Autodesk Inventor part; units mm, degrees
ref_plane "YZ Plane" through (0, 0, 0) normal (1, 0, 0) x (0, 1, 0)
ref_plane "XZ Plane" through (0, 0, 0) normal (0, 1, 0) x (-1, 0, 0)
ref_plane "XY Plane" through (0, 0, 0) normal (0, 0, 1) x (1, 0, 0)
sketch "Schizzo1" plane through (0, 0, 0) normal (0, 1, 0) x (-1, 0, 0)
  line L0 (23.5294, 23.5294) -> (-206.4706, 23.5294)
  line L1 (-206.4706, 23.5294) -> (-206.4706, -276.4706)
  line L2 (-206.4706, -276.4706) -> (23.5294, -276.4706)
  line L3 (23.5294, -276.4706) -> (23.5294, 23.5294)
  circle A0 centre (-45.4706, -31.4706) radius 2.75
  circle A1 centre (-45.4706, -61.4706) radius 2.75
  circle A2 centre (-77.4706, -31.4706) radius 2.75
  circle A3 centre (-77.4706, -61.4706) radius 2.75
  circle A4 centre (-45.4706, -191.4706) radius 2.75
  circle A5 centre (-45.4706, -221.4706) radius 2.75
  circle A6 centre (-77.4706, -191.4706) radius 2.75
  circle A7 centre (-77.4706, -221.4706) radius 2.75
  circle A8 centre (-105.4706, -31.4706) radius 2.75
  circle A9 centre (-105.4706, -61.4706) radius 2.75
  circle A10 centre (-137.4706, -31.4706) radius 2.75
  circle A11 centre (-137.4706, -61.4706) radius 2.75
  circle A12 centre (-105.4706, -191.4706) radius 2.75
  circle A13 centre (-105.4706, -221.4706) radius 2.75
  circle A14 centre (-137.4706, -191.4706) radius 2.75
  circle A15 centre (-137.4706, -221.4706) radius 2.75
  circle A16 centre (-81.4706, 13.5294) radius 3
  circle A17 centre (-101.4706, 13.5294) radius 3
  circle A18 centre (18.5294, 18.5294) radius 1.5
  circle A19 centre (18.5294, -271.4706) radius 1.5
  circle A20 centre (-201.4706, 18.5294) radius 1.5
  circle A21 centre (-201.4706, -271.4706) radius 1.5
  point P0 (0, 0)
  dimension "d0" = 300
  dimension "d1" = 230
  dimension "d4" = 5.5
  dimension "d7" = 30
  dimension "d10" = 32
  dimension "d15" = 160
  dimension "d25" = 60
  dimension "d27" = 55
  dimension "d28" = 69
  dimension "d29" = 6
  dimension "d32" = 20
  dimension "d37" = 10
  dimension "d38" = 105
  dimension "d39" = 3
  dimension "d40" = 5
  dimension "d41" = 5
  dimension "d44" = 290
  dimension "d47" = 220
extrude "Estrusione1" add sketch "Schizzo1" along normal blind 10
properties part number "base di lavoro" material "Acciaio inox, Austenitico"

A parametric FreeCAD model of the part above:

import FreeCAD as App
import Part
import Sketcher
from FreeCAD import Vector
Q = App.Units.Quantity


def add_polygon(sketch, points):
    """Adds a closed chain of lines whose ends are joined by coincident constraints."""
    first, n = sketch.GeometryCount, len(points)
    for a, b in zip(points, points[1:] + points[:1]):
        sketch.addGeometry(Part.LineSegment(App.Vector(*a, 0), App.Vector(*b, 0)), False)
    for i in range(n):
        sketch.addConstraint(Sketcher.Constraint("Coincident", first + i, 2, first + (i + 1) % n, 1))

doc = App.newDocument("Part")
body = doc.addObject("PartDesign::Body", "Body")

sketch1 = doc.addObject("Sketcher::SketchObject", "Sketch")
body.addObject(sketch1)
sketch1.AttachmentSupport = (doc.XZ_Plane, [""])
sketch1.MapMode = "FlatFace"
add_polygon(sketch1, [(-23.5, -276.5), (-23.5, 23.5), (206.5, 23.5), (206.5, -276.5)])
sketch1.addGeometry(Part.Circle(Vector(201.5, -271.5, 0), Vector(0, 0, 1), 1.5), False)
sketch1.addGeometry(Part.Circle(Vector(137.5, -221.5, 0), Vector(0, 0, 1), 2.8), False)
sketch1.addGeometry(Part.Circle(Vector(105.5, -221.5, 0), Vector(0, 0, 1), 2.8), False)
sketch1.addGeometry(Part.Circle(Vector(137.5, -191.5, 0), Vector(0, 0, 1), 2.8), False)
sketch1.addGeometry(Part.Circle(Vector(105.5, -191.5, 0), Vector(0, 0, 1), 2.8), False)
sketch1.addGeometry(Part.Circle(Vector(77.5, -221.5, 0), Vector(0, 0, 1), 2.8), False)
sketch1.addGeometry(Part.Circle(Vector(45.5, -221.5, 0), Vector(0, 0, 1), 2.8), False)
sketch1.addGeometry(Part.Circle(Vector(-18.5, -271.5, 0), Vector(0, 0, 1), 1.5), False)
sketch1.addGeometry(Part.Circle(Vector(77.5, -191.5, 0), Vector(0, 0, 1), 2.8), False)
sketch1.addGeometry(Part.Circle(Vector(45.5, -191.5, 0), Vector(0, 0, 1), 2.8), False)
sketch1.addGeometry(Part.Circle(Vector(137.5, -61.5, 0), Vector(0, 0, 1), 2.8), False)
sketch1.addGeometry(Part.Circle(Vector(105.5, -61.5, 0), Vector(0, 0, 1), 2.8), False)
sketch1.addGeometry(Part.Circle(Vector(201.5, 18.5, 0), Vector(0, 0, 1), 1.5), False)
sketch1.addGeometry(Part.Circle(Vector(137.5, -31.5, 0), Vector(0, 0, 1), 2.8), False)
sketch1.addGeometry(Part.Circle(Vector(105.5, -31.5, 0), Vector(0, 0, 1), 2.8), False)
sketch1.addGeometry(Part.Circle(Vector(101.5, 13.5, 0), Vector(0, 0, 1), 3), False)
sketch1.addGeometry(Part.Circle(Vector(77.5, -61.5, 0), Vector(0, 0, 1), 2.8), False)
sketch1.addGeometry(Part.Circle(Vector(45.5, -61.5, 0), Vector(0, 0, 1), 2.8), False)
sketch1.addGeometry(Part.Circle(Vector(77.5, -31.5, 0), Vector(0, 0, 1), 2.8), False)
sketch1.addGeometry(Part.Circle(Vector(45.5, -31.5, 0), Vector(0, 0, 1), 2.8), False)
sketch1.addGeometry(Part.Circle(Vector(81.5, 13.5, 0), Vector(0, 0, 1), 3), False)
sketch1.addGeometry(Part.Circle(Vector(-18.5, 18.5, 0), Vector(0, 0, 1), 1.5), False)
sketch1.addConstraint(Sketcher.Constraint("Vertical", 0))
sketch1.addConstraint(Sketcher.Constraint("Horizontal", 1))
sketch1.addConstraint(Sketcher.Constraint("Vertical", 2))
sketch1.addConstraint(Sketcher.Constraint("Horizontal", 3))
sketch1.addConstraint(Sketcher.Constraint("Equal", 5, 6))
sketch1.addConstraint(Sketcher.Constraint("Equal", 6, 7))
sketch1.addConstraint(Sketcher.Constraint("Equal", 7, 8))
sketch1.addConstraint(Sketcher.Constraint("Equal", 8, 9))
sketch1.addConstraint(Sketcher.Constraint("Equal", 9, 10))
sketch1.addConstraint(Sketcher.Constraint("Equal", 4, 11))
sketch1.addConstraint(Sketcher.Constraint("Equal", 10, 12))
sketch1.addConstraint(Sketcher.Constraint("Equal", 12, 13))
sketch1.addConstraint(Sketcher.Constraint("Equal", 13, 14))
sketch1.addConstraint(Sketcher.Constraint("Equal", 14, 15))
sketch1.addConstraint(Sketcher.Constraint("Equal", 11, 16))
sketch1.addConstraint(Sketcher.Constraint("Equal", 15, 17))
sketch1.addConstraint(Sketcher.Constraint("Equal", 17, 18))
sketch1.addConstraint(Sketcher.Constraint("Equal", 18, 20))
sketch1.addConstraint(Sketcher.Constraint("Equal", 20, 21))
sketch1.addConstraint(Sketcher.Constraint("Equal", 21, 22))
sketch1.addConstraint(Sketcher.Constraint("Equal", 22, 23))
sketch1.addConstraint(Sketcher.Constraint("Equal", 19, 24))
sketch1.addConstraint(Sketcher.Constraint("Equal", 16, 25))
sketch1.addConstraint(Sketcher.Constraint("Horizontal", 5, 3, 6, 3))
sketch1.addConstraint(Sketcher.Constraint("Horizontal", 7, 3, 8, 3))
sketch1.addConstraint(Sketcher.Constraint("Horizontal", 6, 3, 9, 3))
sketch1.addConstraint(Sketcher.Constraint("Horizontal", 9, 3, 10, 3))
sketch1.addConstraint(Sketcher.Constraint("Horizontal", 4, 3, 11, 3))
sketch1.addConstraint(Sketcher.Constraint("Horizontal", 8, 3, 12, 3))
sketch1.addConstraint(Sketcher.Constraint("Horizontal", 12, 3, 13, 3))
sketch1.addConstraint(Sketcher.Constraint("Horizontal", 14, 3, 15, 3))
sketch1.addConstraint(Sketcher.Constraint("Horizontal", 17, 3, 18, 3))
sketch1.addConstraint(Sketcher.Constraint("Horizontal", 15, 3, 20, 3))
sketch1.addConstraint(Sketcher.Constraint("Horizontal", 20, 3, 21, 3))
sketch1.addConstraint(Sketcher.Constraint("Horizontal", 18, 3, 22, 3))
sketch1.addConstraint(Sketcher.Constraint("Horizontal", 22, 3, 23, 3))
sketch1.addConstraint(Sketcher.Constraint("Horizontal", 19, 3, 24, 3))
sketch1.addConstraint(Sketcher.Constraint("Horizontal", 16, 3, 25, 3))
sketch1.addConstraint(Sketcher.Constraint("Vertical", 5, 3, 7, 3))
sketch1.addConstraint(Sketcher.Constraint("Vertical", 6, 3, 8, 3))
sketch1.addConstraint(Sketcher.Constraint("Vertical", 9, 3, 12, 3))
sketch1.addConstraint(Sketcher.Constraint("Vertical", 10, 3, 13, 3))
sketch1.addConstraint(Sketcher.Constraint("Vertical", 7, 3, 14, 3))
sketch1.addConstraint(Sketcher.Constraint("Vertical", 8, 3, 15, 3))
sketch1.addConstraint(Sketcher.Constraint("Vertical", 4, 3, 16, 3))
sketch1.addConstraint(Sketcher.Constraint("Vertical", 14, 3, 17, 3))
sketch1.addConstraint(Sketcher.Constraint("Vertical", 15, 3, 18, 3))
sketch1.addConstraint(Sketcher.Constraint("Vertical", 12, 3, 20, 3))
sketch1.addConstraint(Sketcher.Constraint("Vertical", 13, 3, 21, 3))
sketch1.addConstraint(Sketcher.Constraint("Vertical", 20, 3, 22, 3))
sketch1.addConstraint(Sketcher.Constraint("Vertical", 21, 3, 23, 3))
sketch1.addConstraint(Sketcher.Constraint("Vertical", 11, 3, 25, 3))
sketch1.addConstraint(Sketcher.Constraint("Diameter", 4, Q("3 mm")))
sketch1.addConstraint(Sketcher.Constraint("Diameter", 19, Q("6 mm")))
sketch1.addConstraint(Sketcher.Constraint("Diameter", 5, Q("5.5 mm")))
sketch1.addConstraint(Sketcher.Constraint("DistanceX", 1, 1, 1, 2, Q("230 mm")))
sketch1.addConstraint(Sketcher.Constraint("DistanceY", 0, 1, 0, 2, Q("300 mm")))
sketch1.addConstraint(Sketcher.Constraint("DistanceX", 6, 3, 5, 3, Q("32 mm")))
sketch1.addConstraint(Sketcher.Constraint("DistanceY", 5, 3, 7, 3, Q("30 mm")))
sketch1.addConstraint(Sketcher.Constraint("DistanceX", 9, 3, 5, 3, Q("60 mm")))
sketch1.addConstraint(Sketcher.Constraint("DistanceX", 10, 3, 9, 3, Q("32 mm")))
sketch1.addConstraint(Sketcher.Constraint("DistanceY", 5, 3, 14, 3, Q("160 mm")))
sketch1.addConstraint(Sketcher.Constraint("DistanceY", 14, 3, 17, 3, Q("30 mm")))
sketch1.addConstraint(Sketcher.Constraint("DistanceY", 19, 3, 16, 3, Q("5 mm")))
sketch1.addConstraint(Sketcher.Constraint("DistanceX", 24, 3, 19, 3, Q("20 mm")))
sketch1.addConstraint(Sketcher.Constraint("DistanceX", 0, 2, 25, 3, Q("5 mm")))
sketch1.addConstraint(Sketcher.Constraint("DistanceY", 25, 3, 0, 2, Q("5 mm")))
sketch1.addConstraint(Sketcher.Constraint("DistanceX", 0, 2, 23, 3, Q("69 mm")))
sketch1.addConstraint(Sketcher.Constraint("DistanceY", 23, 3, 0, 2, Q("55 mm")))
sketch1.addConstraint(Sketcher.Constraint("DistanceX", 0, 2, 24, 3, Q("105 mm")))
sketch1.addConstraint(Sketcher.Constraint("DistanceX", 16, 3, 1, 2, Q("5 mm")))
sketch1.addConstraint(Sketcher.Constraint("DistanceY", 2, 2, 4, 3, Q("5 mm")))
sketch1.addConstraint(Sketcher.Constraint("DistanceX", -1, 1, 4, 3, Q("201.4706 mm")))
sketch1.addConstraint(Sketcher.Constraint("DistanceY", 4, 3, -1, 1, Q("271.4706 mm")))
pad1 = doc.addObject("PartDesign::Pad", "Pad")
body.addObject(pad1)
pad1.Profile = sketch1
pad1.Length = 10
pad1.Reversed = True

doc.recompute()
